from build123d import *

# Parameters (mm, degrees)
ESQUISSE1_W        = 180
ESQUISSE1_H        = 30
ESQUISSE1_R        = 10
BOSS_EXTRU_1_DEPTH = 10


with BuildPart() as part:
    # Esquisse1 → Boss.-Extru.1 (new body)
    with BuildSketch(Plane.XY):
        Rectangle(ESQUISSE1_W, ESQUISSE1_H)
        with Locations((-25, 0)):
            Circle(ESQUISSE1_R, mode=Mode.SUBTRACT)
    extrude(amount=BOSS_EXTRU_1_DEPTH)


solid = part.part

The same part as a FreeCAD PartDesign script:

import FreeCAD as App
import Part
import Sketcher
Q = App.Units.Quantity

doc = App.newDocument("Part")
body = doc.addObject("PartDesign::Body", "Body")

# Sketch on XY plane
sketch1 = body.newObject("Sketcher::SketchObject", "Sketch")
sketch1.AttachmentSupport = (doc.getObject("XY_Plane"), [""])
sketch1.MapMode = "FlatFace"
sketch1.addGeometry([
    Part.LineSegment(App.Vector(-90, 15, 0), App.Vector(-90, -15, 0)),  # 0
    Part.LineSegment(App.Vector(-90, -15, 0), App.Vector(90, -15, 0)),  # 1
    Part.LineSegment(App.Vector(90, -15, 0), App.Vector(90, 15, 0)),  # 2
    Part.LineSegment(App.Vector(90, 15, 0), App.Vector(-90, 15, 0)),  # 3
    Part.Circle(App.Vector(-25, 0, 0), App.Vector(0, 0, 1), 10),  # 4
], False)
sketch1.addConstraint([
    Sketcher.Constraint("Coincident", 0, 2, 1, 1),
    Sketcher.Constraint("Coincident", 1, 2, 2, 1),
    Sketcher.Constraint("Coincident", 2, 2, 3, 1),
    Sketcher.Constraint("Coincident", 3, 2, 0, 1),
    Sketcher.Constraint("Vertical", 0),
    Sketcher.Constraint("Horizontal", 1),
    Sketcher.Constraint("Vertical", 2),
    Sketcher.Constraint("Horizontal", 3),
    Sketcher.Constraint("Symmetric", 0, 2, 2, 2, -1, 1),
    Sketcher.Constraint("PointOnObject", 4, 3, -1),
    Sketcher.Constraint("Diameter", 4, Q("20 mm")),
    Sketcher.Constraint("DistanceX", 1, 1, 1, 2, Q("180 mm")),
    Sketcher.Constraint("DistanceY", 0, 2, 0, 1, Q("30 mm")),
    Sketcher.Constraint("DistanceX", 4, 3, -1, 1, Q("25 mm")),
])
pad1 = body.newObject("PartDesign::Pad", "Pad")
pad1.Profile = sketch1
pad1.Length = 10

doc.recompute()
